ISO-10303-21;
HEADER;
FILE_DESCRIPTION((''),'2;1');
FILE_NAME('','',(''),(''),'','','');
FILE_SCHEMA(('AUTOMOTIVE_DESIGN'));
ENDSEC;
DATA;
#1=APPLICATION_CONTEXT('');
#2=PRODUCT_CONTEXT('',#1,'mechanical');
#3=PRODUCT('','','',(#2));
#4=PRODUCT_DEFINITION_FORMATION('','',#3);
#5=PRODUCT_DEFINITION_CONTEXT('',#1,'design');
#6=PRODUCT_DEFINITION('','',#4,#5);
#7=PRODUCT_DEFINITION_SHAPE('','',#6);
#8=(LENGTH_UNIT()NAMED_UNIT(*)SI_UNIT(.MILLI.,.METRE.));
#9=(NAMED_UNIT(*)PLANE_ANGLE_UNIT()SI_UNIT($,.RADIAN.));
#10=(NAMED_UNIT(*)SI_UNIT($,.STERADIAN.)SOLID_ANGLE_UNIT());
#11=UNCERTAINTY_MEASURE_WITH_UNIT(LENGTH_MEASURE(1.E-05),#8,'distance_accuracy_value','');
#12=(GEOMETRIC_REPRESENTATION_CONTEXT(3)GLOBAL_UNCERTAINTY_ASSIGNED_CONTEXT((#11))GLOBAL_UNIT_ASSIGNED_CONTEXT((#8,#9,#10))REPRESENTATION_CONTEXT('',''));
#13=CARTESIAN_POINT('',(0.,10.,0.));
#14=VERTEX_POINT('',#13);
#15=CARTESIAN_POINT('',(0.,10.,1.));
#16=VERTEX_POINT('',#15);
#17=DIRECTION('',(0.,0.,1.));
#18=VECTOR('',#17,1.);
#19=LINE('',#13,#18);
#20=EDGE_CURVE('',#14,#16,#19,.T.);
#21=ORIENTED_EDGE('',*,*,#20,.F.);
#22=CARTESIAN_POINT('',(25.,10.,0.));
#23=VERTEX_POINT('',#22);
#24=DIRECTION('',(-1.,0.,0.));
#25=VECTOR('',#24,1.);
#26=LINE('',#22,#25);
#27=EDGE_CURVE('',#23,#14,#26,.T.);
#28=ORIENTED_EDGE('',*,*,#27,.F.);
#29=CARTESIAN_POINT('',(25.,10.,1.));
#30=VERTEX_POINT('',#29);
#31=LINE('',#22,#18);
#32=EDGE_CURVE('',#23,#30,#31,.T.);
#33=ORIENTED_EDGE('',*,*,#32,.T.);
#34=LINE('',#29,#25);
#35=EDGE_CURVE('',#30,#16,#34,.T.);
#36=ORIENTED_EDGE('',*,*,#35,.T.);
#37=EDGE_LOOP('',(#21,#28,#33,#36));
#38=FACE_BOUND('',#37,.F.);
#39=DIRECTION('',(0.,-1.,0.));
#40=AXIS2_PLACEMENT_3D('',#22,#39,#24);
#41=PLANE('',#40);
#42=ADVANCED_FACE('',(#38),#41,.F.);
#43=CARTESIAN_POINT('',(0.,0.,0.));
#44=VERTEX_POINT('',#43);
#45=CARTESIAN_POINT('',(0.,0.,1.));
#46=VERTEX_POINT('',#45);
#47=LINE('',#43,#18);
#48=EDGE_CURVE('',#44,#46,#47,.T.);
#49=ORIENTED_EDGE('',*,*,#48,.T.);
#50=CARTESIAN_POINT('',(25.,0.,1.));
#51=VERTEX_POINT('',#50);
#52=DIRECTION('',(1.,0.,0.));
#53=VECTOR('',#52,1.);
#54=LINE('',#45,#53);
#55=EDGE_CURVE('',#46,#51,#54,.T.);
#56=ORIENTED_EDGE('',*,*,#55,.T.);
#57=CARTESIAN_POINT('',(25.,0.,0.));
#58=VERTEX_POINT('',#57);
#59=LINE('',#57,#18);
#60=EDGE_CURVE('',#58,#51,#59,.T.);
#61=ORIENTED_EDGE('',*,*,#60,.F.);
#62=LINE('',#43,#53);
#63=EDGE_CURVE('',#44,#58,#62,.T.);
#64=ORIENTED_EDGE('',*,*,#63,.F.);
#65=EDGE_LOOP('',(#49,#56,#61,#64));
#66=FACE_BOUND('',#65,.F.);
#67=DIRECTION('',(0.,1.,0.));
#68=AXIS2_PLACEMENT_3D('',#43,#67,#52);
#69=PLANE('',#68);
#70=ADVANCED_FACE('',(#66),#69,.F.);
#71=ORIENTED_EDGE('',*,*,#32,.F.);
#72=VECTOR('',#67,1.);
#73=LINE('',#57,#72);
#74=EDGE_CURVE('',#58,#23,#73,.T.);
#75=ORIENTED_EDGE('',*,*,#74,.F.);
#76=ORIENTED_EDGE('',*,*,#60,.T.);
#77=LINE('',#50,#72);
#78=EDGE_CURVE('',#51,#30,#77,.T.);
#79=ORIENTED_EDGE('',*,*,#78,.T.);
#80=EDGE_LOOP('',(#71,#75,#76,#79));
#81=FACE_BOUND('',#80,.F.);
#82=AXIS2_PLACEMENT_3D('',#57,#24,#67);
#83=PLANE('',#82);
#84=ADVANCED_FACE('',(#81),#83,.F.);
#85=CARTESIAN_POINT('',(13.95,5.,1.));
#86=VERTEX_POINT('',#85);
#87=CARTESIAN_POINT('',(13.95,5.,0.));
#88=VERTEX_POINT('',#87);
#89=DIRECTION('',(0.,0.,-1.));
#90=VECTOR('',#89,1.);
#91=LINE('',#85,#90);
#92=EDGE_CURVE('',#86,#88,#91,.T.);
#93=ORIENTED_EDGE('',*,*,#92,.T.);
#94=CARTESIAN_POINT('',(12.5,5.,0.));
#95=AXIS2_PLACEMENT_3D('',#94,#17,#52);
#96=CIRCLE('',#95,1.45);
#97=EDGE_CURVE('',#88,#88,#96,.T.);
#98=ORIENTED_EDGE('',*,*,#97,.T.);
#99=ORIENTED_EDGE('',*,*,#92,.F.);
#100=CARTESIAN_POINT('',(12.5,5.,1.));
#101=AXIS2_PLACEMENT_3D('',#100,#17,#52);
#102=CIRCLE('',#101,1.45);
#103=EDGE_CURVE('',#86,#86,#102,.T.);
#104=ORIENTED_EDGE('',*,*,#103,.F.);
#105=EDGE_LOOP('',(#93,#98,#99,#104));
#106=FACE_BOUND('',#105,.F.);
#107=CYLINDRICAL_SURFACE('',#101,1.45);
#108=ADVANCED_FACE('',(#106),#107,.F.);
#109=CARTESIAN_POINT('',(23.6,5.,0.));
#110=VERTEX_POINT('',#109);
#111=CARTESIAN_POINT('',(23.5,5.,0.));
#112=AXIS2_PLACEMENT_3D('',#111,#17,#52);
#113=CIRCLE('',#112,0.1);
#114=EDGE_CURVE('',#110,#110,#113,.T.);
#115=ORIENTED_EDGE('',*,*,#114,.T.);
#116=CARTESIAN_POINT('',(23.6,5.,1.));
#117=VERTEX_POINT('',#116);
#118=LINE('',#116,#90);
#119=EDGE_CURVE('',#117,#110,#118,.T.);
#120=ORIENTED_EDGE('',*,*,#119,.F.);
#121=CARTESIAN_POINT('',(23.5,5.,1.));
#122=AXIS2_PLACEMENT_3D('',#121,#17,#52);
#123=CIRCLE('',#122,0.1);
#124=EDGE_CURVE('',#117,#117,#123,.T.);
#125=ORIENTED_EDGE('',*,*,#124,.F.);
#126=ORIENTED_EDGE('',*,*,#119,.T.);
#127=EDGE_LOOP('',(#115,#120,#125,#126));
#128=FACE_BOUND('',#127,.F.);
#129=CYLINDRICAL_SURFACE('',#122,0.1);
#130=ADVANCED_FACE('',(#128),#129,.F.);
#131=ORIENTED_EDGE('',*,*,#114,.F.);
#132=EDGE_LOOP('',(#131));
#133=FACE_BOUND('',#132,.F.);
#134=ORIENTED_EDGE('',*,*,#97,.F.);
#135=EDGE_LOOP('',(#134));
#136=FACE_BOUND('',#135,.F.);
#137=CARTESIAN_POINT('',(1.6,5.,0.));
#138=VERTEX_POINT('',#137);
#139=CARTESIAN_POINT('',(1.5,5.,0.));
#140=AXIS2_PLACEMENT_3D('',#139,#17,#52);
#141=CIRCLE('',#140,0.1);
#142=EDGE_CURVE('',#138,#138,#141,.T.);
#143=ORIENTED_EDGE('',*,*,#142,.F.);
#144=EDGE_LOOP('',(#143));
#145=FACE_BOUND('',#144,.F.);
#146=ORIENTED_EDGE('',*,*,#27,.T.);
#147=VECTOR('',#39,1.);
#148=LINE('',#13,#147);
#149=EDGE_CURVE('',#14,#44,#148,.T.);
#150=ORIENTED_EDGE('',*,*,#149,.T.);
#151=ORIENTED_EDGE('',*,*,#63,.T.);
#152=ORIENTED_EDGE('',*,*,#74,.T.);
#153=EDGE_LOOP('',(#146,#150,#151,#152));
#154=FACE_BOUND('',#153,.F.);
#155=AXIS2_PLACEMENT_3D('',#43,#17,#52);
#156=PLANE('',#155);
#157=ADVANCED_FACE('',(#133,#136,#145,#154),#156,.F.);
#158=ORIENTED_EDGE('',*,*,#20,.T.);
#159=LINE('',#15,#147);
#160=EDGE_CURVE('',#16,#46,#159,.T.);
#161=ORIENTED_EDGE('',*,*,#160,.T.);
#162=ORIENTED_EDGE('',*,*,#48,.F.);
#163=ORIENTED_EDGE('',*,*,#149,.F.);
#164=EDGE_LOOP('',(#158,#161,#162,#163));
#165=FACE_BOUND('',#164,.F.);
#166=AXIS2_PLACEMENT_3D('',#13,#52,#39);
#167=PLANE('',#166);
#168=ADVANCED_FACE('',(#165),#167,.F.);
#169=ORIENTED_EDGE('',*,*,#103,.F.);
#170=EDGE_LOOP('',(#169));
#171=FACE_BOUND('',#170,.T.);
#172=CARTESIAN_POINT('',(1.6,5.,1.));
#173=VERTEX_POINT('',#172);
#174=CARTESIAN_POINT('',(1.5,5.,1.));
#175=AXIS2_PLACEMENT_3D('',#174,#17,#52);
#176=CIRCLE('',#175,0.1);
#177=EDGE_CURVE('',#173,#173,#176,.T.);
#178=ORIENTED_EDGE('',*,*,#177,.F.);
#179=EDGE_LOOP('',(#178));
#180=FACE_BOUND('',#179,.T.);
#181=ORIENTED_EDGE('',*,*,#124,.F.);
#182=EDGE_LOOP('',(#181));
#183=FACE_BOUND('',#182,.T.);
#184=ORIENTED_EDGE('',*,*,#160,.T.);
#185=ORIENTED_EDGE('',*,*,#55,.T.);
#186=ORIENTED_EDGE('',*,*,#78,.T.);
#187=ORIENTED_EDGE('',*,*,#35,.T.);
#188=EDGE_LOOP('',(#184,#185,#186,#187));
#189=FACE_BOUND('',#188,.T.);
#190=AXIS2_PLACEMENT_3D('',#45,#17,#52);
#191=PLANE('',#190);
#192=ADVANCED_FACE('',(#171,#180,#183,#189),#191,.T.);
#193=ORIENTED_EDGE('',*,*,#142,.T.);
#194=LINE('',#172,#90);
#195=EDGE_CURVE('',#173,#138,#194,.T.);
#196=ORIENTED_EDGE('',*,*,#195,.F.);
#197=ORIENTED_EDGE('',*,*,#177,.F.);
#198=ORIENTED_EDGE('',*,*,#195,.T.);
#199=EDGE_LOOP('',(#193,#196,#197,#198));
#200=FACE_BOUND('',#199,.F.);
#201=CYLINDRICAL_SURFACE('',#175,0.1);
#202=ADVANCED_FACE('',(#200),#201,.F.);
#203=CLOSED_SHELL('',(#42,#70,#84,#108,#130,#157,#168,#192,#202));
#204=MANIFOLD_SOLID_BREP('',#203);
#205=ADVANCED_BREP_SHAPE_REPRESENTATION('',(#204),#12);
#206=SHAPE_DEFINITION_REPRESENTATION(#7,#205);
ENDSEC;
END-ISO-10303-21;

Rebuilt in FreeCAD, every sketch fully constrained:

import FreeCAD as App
import Part
import Sketcher

V = App.Vector
Q = App.Units.Quantity


def add_polygon(sketch, points):
    """Adds a closed chain of lines whose ends are joined by coincident constraints."""
    first, n = sketch.GeometryCount, len(points)
    for a, b in zip(points, points[1:] + points[:1]):
        sketch.addGeometry(Part.LineSegment(App.Vector(*a, 0), App.Vector(*b, 0)), False)
    for i in range(n):
        sketch.addConstraint(Sketcher.Constraint("Coincident", first + i, 2, first + (i + 1) % n, 1))

doc = App.newDocument("Part")
params = doc.addObject("Spreadsheet::Sheet", "Params")
for row, (alias, value) in enumerate([
    ("sketch1_width", "25 mm"),
    ("sketch1_height", "10 mm"),
    ("pad1_length", "1 mm"),
    ("sketch2_diameter", "2.9 mm"),
    ("pocket1_length", "15 mm"),
    ("sketch3_diameter", "0.2 mm"),
    ("pocket2_length", "15 mm"),
], start=1):
    params.set(f"A{row}", alias)
    params.set(f"B{row}", "=" + value)
    params.setAlias(f"B{row}", alias)

body = doc.addObject("PartDesign::Body", "Body")

# Sketch on XY plane
sketch1 = body.newObject("Sketcher::SketchObject", "Sketch")
sketch1.AttachmentSupport = (doc.getObject("XY_Plane"), [""])
sketch1.MapMode = "FlatFace"
add_polygon(sketch1, [(0, 10), (0, 0), (25, 0), (25, 10)])  # lines 0-3
sketch1.addConstraint(Sketcher.Constraint("Vertical", 0))
sketch1.addConstraint(Sketcher.Constraint("Horizontal", 1))
sketch1.addConstraint(Sketcher.Constraint("Vertical", 2))
sketch1.addConstraint(Sketcher.Constraint("Horizontal", 3))
sketch1.addConstraint(Sketcher.Constraint("Coincident", 0, 2, -1, 1))
sketch1.addConstraint(Sketcher.Constraint("DistanceX", 1, 1, 1, 2, Q("25 mm")))
sketch1.addConstraint(Sketcher.Constraint("DistanceY", 0, 2, 0, 1, Q("10 mm")))
sketch1.setExpression("Constraints[9]", "Params.sketch1_width")
sketch1.setExpression("Constraints[10]", "Params.sketch1_height")
pad1 = body.newObject("PartDesign::Pad", "Pad")
pad1.Profile = sketch1
pad1.setExpression("Length", "Params.pad1_length")

# Sketch on XY plane
sketch2 = body.newObject("Sketcher::SketchObject", "Sketch001")
sketch2.AttachmentSupport = (doc.getObject("XY_Plane"), [""])
sketch2.MapMode = "FlatFace"
sketch2.AttachmentOffset = App.Placement(V(0, 0, 1), App.Rotation())
sketch2.addGeometry(Part.Circle(V(12.5, 5, 0), V(0, 0, 1), 1.45), False)
sketch2.addConstraint(Sketcher.Constraint("Diameter", 0, Q("2.9 mm")))
sketch2.addConstraint(Sketcher.Constraint("DistanceY", -1, 1, 0, 3, Q("5 mm")))
sketch2.addConstraint(Sketcher.Constraint("DistanceX", -1, 1, 0, 3, Q("12.5 mm")))
sketch2.setExpression("Constraints[0]", "Params.sketch2_diameter")
pocket1 = body.newObject("PartDesign::Pocket", "Pocket")
pocket1.Profile = sketch2
pocket1.setExpression("Length", "Params.pocket1_length")

# Sketch on XY plane
sketch3 = body.newObject("Sketcher::SketchObject", "Sketch002")
sketch3.AttachmentSupport = (doc.getObject("XY_Plane"), [""])
sketch3.MapMode = "FlatFace"
sketch3.AttachmentOffset = App.Placement(V(0, 0, 1), App.Rotation())
sketch3.addGeometry(Part.Circle(V(23.5, 5, 0), V(0, 0, 1), 0.1), False)
sketch3.addGeometry(Part.Circle(V(1.5, 5, 0), V(0, 0, 1), 0.1), False)
sketch3.addConstraint(Sketcher.Constraint("Equal", 0, 1))
sketch3.addConstraint(Sketcher.Constraint("Horizontal", 0, 3, 1, 3))
sketch3.addConstraint(Sketcher.Constraint("Diameter", 0, Q("0.2 mm")))
sketch3.addConstraint(Sketcher.Constraint("DistanceX", -1, 1, 1, 3, Q("1.5 mm")))
sketch3.addConstraint(Sketcher.Constraint("DistanceY", -1, 1, 0, 3, Q("5 mm")))
sketch3.addConstraint(Sketcher.Constraint("DistanceX", 1, 3, 0, 3, Q("22 mm")))
sketch3.setExpression("Constraints[2]", "Params.sketch3_diameter")
pocket2 = body.newObject("PartDesign::Pocket", "Pocket001")
pocket2.Profile = sketch3
pocket2.setExpression("Length", "Params.pocket2_length")

doc.recompute()
